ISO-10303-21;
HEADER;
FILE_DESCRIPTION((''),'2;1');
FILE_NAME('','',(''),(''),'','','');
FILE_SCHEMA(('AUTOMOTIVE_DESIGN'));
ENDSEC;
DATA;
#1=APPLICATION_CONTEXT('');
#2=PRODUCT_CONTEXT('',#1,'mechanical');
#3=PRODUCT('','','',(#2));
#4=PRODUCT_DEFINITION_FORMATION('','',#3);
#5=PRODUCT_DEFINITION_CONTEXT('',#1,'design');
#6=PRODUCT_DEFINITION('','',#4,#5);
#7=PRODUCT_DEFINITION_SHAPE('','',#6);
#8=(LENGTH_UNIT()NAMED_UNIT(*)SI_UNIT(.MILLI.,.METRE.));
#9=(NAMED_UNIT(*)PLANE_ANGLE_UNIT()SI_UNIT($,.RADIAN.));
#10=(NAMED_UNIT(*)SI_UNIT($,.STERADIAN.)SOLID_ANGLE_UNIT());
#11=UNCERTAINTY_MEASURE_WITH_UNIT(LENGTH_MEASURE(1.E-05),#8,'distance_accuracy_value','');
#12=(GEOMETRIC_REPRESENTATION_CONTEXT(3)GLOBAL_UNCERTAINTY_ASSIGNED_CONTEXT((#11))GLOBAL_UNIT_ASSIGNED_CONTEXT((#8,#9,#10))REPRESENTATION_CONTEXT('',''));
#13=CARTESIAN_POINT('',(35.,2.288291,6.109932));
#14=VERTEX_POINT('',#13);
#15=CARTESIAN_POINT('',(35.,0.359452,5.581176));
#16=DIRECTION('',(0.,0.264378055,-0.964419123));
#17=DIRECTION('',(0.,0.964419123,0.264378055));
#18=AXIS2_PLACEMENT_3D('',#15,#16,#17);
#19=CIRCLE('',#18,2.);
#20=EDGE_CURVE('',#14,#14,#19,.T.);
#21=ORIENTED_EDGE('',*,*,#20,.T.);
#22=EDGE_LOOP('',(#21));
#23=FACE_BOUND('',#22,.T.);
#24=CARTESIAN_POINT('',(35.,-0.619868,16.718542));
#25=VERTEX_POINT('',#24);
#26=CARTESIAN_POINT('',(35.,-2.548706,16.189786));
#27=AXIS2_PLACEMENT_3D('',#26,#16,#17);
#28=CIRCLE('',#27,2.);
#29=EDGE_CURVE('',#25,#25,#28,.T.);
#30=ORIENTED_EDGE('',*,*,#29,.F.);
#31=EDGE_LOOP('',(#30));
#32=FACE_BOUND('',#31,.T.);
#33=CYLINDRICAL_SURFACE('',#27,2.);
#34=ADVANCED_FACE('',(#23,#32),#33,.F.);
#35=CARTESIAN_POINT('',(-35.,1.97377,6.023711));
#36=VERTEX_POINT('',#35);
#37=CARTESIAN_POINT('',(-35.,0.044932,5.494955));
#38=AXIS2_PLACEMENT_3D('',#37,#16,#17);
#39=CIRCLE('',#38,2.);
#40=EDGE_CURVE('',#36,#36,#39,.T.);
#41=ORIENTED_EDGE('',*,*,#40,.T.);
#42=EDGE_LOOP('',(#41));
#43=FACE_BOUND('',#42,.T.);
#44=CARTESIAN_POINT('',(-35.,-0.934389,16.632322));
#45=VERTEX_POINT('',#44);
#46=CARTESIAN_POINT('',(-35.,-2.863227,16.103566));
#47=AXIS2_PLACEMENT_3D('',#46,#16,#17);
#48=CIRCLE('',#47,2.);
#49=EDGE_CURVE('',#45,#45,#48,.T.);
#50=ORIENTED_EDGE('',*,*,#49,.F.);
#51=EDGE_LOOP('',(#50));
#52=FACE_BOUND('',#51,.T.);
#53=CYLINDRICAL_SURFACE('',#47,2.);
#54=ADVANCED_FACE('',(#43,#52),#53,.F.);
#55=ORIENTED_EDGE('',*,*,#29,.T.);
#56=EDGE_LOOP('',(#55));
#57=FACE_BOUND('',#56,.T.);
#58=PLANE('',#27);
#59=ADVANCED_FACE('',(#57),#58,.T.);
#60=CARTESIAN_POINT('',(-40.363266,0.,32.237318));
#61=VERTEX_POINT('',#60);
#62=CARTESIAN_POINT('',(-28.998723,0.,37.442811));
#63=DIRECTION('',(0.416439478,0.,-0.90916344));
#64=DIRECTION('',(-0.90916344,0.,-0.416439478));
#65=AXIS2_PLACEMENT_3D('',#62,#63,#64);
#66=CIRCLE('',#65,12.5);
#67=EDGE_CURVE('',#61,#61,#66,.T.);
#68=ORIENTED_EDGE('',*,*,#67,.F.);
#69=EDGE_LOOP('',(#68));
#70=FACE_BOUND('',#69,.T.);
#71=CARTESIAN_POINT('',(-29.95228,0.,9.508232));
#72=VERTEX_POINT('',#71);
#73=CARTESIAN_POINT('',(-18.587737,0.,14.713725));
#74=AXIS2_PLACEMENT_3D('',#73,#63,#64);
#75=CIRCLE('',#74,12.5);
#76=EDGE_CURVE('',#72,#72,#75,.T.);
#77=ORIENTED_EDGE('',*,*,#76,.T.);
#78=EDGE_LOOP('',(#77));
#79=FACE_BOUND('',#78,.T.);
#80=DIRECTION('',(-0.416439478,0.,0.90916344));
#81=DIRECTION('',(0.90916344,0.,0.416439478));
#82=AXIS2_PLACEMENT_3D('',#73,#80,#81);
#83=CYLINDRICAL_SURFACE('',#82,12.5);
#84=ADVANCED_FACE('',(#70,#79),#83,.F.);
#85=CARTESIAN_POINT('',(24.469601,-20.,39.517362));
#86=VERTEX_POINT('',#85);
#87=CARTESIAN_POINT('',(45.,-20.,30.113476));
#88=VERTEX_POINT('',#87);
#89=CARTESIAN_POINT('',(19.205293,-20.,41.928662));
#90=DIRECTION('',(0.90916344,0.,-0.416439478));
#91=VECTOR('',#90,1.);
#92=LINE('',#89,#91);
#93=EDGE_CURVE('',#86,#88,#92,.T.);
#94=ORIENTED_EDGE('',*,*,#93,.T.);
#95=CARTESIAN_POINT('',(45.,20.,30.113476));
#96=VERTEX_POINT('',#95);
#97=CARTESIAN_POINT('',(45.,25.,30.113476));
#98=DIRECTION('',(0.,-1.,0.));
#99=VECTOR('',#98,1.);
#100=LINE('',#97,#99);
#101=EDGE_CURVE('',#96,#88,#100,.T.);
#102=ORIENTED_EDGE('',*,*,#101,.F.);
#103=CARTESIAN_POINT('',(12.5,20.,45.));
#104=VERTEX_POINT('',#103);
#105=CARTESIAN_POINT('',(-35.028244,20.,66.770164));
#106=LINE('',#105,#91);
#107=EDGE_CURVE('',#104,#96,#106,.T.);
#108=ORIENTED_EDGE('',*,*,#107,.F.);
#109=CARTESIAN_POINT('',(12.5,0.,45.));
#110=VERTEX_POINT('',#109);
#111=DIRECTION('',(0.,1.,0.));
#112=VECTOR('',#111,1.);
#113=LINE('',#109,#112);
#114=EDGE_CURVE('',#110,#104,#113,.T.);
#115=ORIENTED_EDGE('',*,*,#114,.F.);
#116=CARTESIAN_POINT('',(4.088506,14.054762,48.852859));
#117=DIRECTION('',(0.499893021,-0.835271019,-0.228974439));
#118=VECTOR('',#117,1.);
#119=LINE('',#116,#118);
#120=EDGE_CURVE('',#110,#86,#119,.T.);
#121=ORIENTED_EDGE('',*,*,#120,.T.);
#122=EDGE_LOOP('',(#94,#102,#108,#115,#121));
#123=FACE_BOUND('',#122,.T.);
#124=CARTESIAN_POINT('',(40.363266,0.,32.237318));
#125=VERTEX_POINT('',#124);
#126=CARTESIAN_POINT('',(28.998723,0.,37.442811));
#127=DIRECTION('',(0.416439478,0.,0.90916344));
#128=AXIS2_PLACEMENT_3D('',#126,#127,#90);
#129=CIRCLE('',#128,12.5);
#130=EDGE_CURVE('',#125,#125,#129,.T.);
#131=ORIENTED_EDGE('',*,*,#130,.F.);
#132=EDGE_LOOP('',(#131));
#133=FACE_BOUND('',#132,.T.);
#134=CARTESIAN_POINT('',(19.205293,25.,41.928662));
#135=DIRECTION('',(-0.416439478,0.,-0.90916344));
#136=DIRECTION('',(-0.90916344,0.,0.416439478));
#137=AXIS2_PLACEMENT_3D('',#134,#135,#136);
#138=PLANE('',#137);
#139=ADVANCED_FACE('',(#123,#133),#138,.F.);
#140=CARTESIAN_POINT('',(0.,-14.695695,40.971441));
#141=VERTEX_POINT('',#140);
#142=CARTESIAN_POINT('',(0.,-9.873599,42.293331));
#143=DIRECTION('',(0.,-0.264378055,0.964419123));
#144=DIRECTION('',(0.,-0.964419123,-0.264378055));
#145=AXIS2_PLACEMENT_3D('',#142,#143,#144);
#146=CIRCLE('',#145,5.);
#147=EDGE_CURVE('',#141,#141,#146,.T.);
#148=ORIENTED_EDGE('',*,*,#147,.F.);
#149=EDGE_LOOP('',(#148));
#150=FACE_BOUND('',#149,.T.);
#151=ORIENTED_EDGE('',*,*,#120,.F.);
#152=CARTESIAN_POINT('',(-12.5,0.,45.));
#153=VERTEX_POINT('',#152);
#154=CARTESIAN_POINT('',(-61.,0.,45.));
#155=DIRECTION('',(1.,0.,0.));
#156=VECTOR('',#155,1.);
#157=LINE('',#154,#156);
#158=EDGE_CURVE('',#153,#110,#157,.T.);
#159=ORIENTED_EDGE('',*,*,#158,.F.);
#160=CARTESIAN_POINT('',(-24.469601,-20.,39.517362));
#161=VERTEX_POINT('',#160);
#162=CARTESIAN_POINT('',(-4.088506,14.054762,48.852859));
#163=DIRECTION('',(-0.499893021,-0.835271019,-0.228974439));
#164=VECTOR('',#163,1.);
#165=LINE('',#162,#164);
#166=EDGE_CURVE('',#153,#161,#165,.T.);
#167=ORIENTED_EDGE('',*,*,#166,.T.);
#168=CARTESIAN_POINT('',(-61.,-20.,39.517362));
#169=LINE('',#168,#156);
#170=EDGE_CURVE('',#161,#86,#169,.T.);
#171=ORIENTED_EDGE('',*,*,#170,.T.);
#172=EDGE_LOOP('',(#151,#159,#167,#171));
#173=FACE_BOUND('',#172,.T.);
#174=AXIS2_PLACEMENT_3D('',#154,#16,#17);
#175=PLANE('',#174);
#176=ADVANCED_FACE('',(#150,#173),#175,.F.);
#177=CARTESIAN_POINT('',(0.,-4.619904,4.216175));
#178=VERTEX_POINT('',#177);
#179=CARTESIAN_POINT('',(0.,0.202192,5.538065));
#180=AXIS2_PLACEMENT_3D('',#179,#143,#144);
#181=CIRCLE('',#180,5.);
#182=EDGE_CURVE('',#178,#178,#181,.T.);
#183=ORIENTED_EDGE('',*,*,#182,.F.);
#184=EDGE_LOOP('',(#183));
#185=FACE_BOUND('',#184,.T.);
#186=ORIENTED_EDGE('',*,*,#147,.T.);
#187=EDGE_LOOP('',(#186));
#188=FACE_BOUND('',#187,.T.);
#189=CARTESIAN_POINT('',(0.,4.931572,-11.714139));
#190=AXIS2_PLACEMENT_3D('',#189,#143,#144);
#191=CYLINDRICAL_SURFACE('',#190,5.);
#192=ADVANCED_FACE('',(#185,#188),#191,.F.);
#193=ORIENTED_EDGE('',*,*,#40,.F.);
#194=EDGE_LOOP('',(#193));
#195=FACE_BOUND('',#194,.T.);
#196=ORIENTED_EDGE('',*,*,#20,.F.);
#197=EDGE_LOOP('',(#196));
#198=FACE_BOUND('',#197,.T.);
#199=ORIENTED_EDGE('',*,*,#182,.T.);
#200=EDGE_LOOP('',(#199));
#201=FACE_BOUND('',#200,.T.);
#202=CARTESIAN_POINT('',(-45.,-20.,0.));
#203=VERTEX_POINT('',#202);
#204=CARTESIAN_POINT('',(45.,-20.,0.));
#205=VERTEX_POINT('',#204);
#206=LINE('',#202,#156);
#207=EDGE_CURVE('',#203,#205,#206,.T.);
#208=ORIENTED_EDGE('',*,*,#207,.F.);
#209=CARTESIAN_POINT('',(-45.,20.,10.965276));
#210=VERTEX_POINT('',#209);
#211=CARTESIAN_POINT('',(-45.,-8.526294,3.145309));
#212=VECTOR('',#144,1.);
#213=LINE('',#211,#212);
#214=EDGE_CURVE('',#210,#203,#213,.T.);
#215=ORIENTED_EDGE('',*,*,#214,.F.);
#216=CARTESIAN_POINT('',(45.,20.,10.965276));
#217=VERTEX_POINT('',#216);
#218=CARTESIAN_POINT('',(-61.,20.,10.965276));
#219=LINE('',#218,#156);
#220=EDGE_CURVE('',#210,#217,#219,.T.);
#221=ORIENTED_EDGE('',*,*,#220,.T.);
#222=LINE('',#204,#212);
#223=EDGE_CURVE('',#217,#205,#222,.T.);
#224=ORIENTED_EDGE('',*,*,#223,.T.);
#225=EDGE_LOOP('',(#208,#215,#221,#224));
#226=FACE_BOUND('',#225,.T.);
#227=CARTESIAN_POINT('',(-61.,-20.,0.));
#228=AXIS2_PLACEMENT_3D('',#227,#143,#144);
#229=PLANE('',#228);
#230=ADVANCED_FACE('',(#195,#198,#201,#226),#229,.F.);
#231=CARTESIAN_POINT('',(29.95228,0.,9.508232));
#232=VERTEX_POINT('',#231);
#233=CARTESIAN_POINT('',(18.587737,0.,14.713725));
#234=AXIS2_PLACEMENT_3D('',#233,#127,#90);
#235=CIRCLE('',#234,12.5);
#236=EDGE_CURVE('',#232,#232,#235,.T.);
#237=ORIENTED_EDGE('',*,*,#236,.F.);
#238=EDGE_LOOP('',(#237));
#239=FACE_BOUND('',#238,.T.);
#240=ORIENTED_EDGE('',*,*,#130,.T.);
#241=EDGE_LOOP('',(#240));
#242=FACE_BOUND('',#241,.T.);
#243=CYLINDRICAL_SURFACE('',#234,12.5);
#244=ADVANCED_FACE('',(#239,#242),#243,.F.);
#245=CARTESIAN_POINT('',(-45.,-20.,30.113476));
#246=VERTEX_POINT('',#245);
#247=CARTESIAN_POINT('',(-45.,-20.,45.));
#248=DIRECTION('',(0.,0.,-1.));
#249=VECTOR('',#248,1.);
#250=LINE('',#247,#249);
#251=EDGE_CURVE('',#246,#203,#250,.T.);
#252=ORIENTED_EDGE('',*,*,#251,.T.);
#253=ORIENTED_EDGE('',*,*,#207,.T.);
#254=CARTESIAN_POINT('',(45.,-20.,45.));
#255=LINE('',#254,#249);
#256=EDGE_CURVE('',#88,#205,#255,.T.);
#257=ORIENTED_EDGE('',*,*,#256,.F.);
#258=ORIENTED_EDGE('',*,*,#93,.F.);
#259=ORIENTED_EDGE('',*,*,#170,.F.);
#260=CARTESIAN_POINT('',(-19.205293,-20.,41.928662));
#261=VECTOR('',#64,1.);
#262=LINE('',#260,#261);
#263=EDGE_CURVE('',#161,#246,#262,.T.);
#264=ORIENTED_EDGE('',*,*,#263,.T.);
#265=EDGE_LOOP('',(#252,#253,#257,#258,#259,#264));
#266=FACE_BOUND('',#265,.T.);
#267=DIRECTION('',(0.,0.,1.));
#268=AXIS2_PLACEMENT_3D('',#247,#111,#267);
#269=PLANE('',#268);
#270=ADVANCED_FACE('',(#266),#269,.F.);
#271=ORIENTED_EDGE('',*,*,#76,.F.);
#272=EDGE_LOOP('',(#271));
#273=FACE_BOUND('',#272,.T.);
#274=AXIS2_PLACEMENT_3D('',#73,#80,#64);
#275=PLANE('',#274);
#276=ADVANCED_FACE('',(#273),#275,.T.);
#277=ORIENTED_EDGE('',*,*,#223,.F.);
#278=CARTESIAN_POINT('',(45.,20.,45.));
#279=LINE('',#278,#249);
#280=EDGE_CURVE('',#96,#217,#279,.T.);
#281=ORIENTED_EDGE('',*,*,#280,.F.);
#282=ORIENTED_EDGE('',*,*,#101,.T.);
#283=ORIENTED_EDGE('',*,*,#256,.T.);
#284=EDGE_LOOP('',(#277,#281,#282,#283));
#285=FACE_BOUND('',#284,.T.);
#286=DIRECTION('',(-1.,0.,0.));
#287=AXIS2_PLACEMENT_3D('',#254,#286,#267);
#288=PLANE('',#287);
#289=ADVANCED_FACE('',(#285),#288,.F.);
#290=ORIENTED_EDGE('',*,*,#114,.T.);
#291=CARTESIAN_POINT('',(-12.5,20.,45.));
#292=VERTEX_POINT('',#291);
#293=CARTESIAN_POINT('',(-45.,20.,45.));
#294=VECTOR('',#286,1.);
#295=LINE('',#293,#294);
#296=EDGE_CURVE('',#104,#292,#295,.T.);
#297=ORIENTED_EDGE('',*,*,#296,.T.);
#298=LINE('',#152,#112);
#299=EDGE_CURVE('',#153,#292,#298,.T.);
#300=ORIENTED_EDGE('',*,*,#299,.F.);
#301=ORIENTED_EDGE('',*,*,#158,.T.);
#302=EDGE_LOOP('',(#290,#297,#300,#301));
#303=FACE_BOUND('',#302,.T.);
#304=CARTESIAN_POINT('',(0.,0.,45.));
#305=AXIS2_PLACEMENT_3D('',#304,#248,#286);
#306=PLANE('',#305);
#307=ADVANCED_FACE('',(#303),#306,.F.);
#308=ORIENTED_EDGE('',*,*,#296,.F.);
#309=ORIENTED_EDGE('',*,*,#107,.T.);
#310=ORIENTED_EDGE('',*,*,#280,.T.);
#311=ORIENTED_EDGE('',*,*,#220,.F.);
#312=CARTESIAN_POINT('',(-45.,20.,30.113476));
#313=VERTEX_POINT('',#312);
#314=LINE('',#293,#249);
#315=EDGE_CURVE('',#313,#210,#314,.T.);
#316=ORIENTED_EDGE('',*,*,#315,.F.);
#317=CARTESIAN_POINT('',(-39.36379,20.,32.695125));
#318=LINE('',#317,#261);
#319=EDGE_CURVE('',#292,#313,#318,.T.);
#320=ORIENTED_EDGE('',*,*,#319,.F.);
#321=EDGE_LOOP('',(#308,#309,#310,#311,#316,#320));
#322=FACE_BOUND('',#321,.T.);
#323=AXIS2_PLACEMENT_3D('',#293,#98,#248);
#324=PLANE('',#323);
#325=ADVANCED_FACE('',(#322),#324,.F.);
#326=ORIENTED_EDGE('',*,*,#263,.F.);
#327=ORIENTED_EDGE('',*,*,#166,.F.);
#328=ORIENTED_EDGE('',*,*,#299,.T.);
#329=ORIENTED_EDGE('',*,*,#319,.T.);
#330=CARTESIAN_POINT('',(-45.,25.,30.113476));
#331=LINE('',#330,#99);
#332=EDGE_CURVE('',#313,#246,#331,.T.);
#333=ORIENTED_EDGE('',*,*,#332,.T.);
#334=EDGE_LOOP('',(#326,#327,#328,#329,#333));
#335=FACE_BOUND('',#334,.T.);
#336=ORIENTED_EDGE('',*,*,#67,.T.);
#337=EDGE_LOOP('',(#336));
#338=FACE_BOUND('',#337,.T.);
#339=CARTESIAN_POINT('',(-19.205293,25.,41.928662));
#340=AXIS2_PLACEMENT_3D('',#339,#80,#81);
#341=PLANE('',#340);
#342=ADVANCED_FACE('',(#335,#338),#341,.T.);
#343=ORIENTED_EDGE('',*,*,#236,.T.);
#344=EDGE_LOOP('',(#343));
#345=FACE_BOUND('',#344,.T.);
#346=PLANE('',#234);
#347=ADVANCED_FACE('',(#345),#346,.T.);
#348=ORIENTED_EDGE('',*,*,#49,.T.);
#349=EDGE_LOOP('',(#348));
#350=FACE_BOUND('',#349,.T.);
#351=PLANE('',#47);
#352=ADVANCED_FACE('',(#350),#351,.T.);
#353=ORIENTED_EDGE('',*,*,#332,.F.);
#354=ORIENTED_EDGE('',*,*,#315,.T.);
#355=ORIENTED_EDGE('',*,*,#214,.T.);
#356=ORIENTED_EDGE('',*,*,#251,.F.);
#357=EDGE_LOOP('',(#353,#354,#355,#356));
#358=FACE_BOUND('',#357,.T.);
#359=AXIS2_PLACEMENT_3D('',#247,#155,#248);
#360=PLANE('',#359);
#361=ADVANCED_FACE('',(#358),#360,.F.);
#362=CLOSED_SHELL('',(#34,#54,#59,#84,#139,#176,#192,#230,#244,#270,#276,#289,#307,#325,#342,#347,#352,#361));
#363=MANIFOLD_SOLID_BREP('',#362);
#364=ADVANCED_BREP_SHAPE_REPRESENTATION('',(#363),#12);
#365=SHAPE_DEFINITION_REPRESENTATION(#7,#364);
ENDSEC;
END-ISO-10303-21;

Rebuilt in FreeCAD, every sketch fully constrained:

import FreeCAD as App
import Part
import Sketcher
from FreeCAD import Vector
Q = App.Units.Quantity

doc = App.newDocument("Part")
body = doc.addObject("PartDesign::Body", "Body")

# Sketch on XY plane
sketch1 = body.newObject("Sketcher::SketchObject", "Sketch")
sketch1.AttachmentSupport = (doc.getObject("XY_Plane"), [""])
sketch1.MapMode = "FlatFace"
sketch1.addGeometry([
    Part.LineSegment(Vector(-45, 20, 0), Vector(-45, -20, 0)),
    Part.LineSegment(Vector(-45, -20, 0), Vector(45, -20, 0)),
    Part.LineSegment(Vector(45, -20, 0), Vector(45, 20, 0)),
    Part.LineSegment(Vector(45, 20, 0), Vector(-45, 20, 0)),
], False)
sketch1.addConstraint([
    Sketcher.Constraint("Coincident", 0, 2, 1, 1),
    Sketcher.Constraint("Coincident", 1, 2, 2, 1),
    Sketcher.Constraint("Coincident", 2, 2, 3, 1),
    Sketcher.Constraint("Coincident", 3, 2, 0, 1),
    Sketcher.Constraint("Vertical", 0),
    Sketcher.Constraint("Horizontal", 1),
    Sketcher.Constraint("Vertical", 2),
    Sketcher.Constraint("Horizontal", 3),
    Sketcher.Constraint("Symmetric", 0, 2, 2, 2, -1, 1),
    Sketcher.Constraint("DistanceX", 1, 1, 1, 2, 90.0),
    Sketcher.Constraint("DistanceY", 0, 2, 0, 1, 40.0),
])
pad1 = body.newObject("PartDesign::Pad", "Pad")
pad1.Profile = sketch1
pad1.Length = 45

# Sketch on XZ plane
sketch2 = body.newObject("Sketcher::SketchObject", "Sketch001")
sketch2.AttachmentSupport = (doc.getObject("XZ_Plane"), [""])
sketch2.MapMode = "FlatFace"
sketch2.AttachmentOffset = App.Placement(Vector(0, 0, 20), App.Rotation())
sketch2.addGeometry([
    Part.LineSegment(Vector(45, 45, 0), Vector(12.5, 45, 0)),  # 0
    Part.LineSegment(Vector(12.5, 45, 0), Vector(45, 30.113476, 0)),  # 1
    Part.LineSegment(Vector(45, 30.113476, 0), Vector(45, 45, 0)),  # 2
    Part.LineSegment(Vector(-45, 30.113476, 0), Vector(-12.5, 45, 0)),  # 3
    Part.LineSegment(Vector(-12.5, 45, 0), Vector(-45, 45, 0)),  # 4
    Part.LineSegment(Vector(-45, 45, 0), Vector(-45, 30.113476, 0)),  # 5
], False)
sketch2.addConstraint([
    Sketcher.Constraint("Coincident", 0, 2, 1, 1),
    Sketcher.Constraint("Coincident", 1, 2, 2, 1),
    Sketcher.Constraint("Coincident", 2, 2, 0, 1),
    Sketcher.Constraint("Coincident", 3, 2, 4, 1),
    Sketcher.Constraint("Coincident", 4, 2, 5, 1),
    Sketcher.Constraint("Coincident", 5, 2, 3, 1),
    Sketcher.Constraint("Horizontal", 0),
    Sketcher.Constraint("Vertical", 2),
    Sketcher.Constraint("Horizontal", 4),
    Sketcher.Constraint("Vertical", 5),
    Sketcher.Constraint("Symmetric", 0, 2, 3, 2, -2),
    Sketcher.Constraint("Symmetric", 1, 2, 5, 2, -2),
    Sketcher.Constraint("DistanceX", 0, 2, 0, 1, 32.5),
    Sketcher.Constraint("DistanceY", -1, 1, 0, 2, 45.0),
    Sketcher.Constraint("DistanceX", -1, 1, 1, 2, 45.0),
    Sketcher.Constraint("Angle", 1, Q("-24.61 deg")),
])
pocket1 = body.newObject("PartDesign::Pocket", "Pocket")
pocket1.Profile = sketch2
pocket1.Length = 45

# Sketch on YZ plane
sketch3 = body.newObject("Sketcher::SketchObject", "Sketch002")
sketch3.AttachmentSupport = (doc.getObject("YZ_Plane"), [""])
sketch3.MapMode = "FlatFace"
sketch3.AttachmentOffset = App.Placement(Vector(0, 0, 45), App.Rotation())
sketch3.addGeometry([
    Part.LineSegment(Vector(20, 10.965276, 0), Vector(-20, 0, 0)),  # 0
    Part.LineSegment(Vector(-20, 0, 0), Vector(20, 0, 0)),  # 1
    Part.LineSegment(Vector(20, 0, 0), Vector(20, 10.965276, 0)),  # 2
    Part.LineSegment(Vector(-20, 39.517362, 0), Vector(0, 45, 0)),  # 3
    Part.LineSegment(Vector(0, 45, 0), Vector(-20, 45, 0)),  # 4
    Part.LineSegment(Vector(-20, 45, 0), Vector(-20, 39.517362, 0)),  # 5
], False)
sketch3.addConstraint([
    Sketcher.Constraint("Coincident", 0, 2, 1, 1),
    Sketcher.Constraint("Coincident", 1, 2, 2, 1),
    Sketcher.Constraint("Coincident", 2, 2, 0, 1),
    Sketcher.Constraint("Coincident", 3, 2, 4, 1),
    Sketcher.Constraint("Coincident", 4, 2, 5, 1),
    Sketcher.Constraint("Coincident", 5, 2, 3, 1),
    Sketcher.Constraint("Horizontal", 1),
    Sketcher.Constraint("Vertical", 2),
    Sketcher.Constraint("Horizontal", 4),
    Sketcher.Constraint("Vertical", 5),
    Sketcher.Constraint("Symmetric", 0, 2, 1, 2, -1, 1),
    Sketcher.Constraint("PointOnObject", 3, 2, -2),
    Sketcher.Constraint("Parallel", 0, 3),
    Sketcher.Constraint("Vertical", 0, 2, 4, 2),
    Sketcher.Constraint("DistanceX", 1, 1, 1, 2, 40.0),
    Sketcher.Constraint("DistanceY", -1, 1, 3, 2, 45.0),
    Sketcher.Constraint("Angle", 0, Q("-164.67 deg")),
])
pocket2 = body.newObject("PartDesign::Pocket", "Pocket001")
pocket2.Profile = sketch3
pocket2.Length = 106

# Sketch on an angled plane
sketch4 = body.newObject("Sketcher::SketchObject", "Sketch003")
sketch4.Placement = App.Placement(Vector(19.205293, 0, 41.928662), App.Rotation(Vector(0.90916344, 0, -0.416439478), Vector(0, 0.999999999, 0), Vector(0.416439478, 0, 0.90916344), "ZXY"))
sketch4.addGeometry(Part.Circle(Vector(10.771914, 0, 0), Vector(0, 0, 1), 12.5), False)
sketch4.addConstraint([
    Sketcher.Constraint("PointOnObject", 0, 3, -1),
    Sketcher.Constraint("Diameter", 0, 25.0),
    Sketcher.Constraint("DistanceX", -1, 1, 0, 3, 10.771914),
])
pocket3 = body.newObject("PartDesign::Pocket", "Pocket002")
pocket3.Profile = sketch4
pocket3.Length = 25
doc.recompute()

mirrored = body.newObject("PartDesign::Mirrored", "Mirrored")
mirrored.Originals = [pocket3]
mirrored.MirrorPlane = (doc.getObject("YZ_Plane"), [""])
body.Tip = mirrored

# Sketch on an angled plane
sketch5 = body.newObject("Sketcher::SketchObject", "Sketch004")
sketch5.Placement = App.Placement(Vector(0, -11.473706, 41.854691), App.Rotation(Vector(1, 0, 0), Vector(0, 0.964419123, 0.264378055), Vector(0, -0.264378055, 0.964419123), "ZXY"))
sketch5.addGeometry(Part.Circle(Vector(0, 1.659141, 0), Vector(0, 0, 1), 5), False)
sketch5.addConstraint([
    Sketcher.Constraint("PointOnObject", 0, 3, -2),
    Sketcher.Constraint("Diameter", 0, 10.0),
    Sketcher.Constraint("DistanceY", -1, 1, 0, 3, 1.659141),
])
pocket4 = body.newObject("PartDesign::Pocket", "Pocket003")
pocket4.Profile = sketch5
pocket4.Length = 56

# Sketch on an angled plane
sketch6 = body.newObject("Sketcher::SketchObject", "Sketch005")
sketch6.Placement = App.Placement(Vector(0, -1.397915, 5.099425), App.Rotation(Vector(-1, 0, 0), Vector(0, 0.964419123, 0.264378055), Vector(0, 0.264378055, -0.964419123), "ZXY"))
sketch6.addGeometry([
    Part.Circle(Vector(35, 1.496078, 0), Vector(0, 0, 1), 2),
    Part.Circle(Vector(-35, 1.822203, 0), Vector(0, 0, 1), 2),
], False)
sketch6.addConstraint([
    Sketcher.Constraint("Equal", 0, 1),
    Sketcher.Constraint("Diameter", 0, 4.0),
    Sketcher.Constraint("DistanceX", -1, 1, 0, 3, 35.0),
    Sketcher.Constraint("DistanceX", 1, 3, -1, 1, 35.0),
    Sketcher.Constraint("DistanceY", -1, 1, 0, 3, 1.496078),
    Sketcher.Constraint("DistanceY", -1, 1, 1, 3, 1.822203),
])
pocket5 = body.newObject("PartDesign::Pocket", "Pocket004")
pocket5.Profile = sketch6
pocket5.Length = 11

doc.recompute()
